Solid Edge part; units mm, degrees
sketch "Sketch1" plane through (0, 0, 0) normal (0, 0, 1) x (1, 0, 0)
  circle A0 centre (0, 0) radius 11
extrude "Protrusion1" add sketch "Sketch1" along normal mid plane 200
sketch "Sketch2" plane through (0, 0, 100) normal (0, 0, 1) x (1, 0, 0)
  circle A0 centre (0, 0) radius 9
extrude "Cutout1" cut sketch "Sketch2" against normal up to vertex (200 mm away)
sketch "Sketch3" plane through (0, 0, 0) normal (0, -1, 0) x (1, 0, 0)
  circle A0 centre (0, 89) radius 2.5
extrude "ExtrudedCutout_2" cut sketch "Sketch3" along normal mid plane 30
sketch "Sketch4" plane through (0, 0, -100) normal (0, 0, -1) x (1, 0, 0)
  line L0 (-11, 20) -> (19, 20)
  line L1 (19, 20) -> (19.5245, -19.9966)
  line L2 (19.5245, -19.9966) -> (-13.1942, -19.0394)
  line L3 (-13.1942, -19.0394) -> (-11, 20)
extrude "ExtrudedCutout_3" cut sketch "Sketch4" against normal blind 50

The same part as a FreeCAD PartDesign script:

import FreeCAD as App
import Part
import Sketcher

V = App.Vector
Q = App.Units.Quantity

doc = App.newDocument("Part")
body = doc.addObject("PartDesign::Body", "Body")

# Sketch on XY plane
sketch1 = doc.addObject("Sketcher::SketchObject", "Sketch")
body.addObject(sketch1)
sketch1.AttachmentSupport = (doc.XY_Plane, [""])
sketch1.MapMode = "FlatFace"
sketch1.addGeometry(Part.Circle(V(0, 0, 0), V(0, 0, 1), 11), False)
sketch1.addConstraint(Sketcher.Constraint("Coincident", 0, 3, -1, 1))
sketch1.addConstraint(Sketcher.Constraint("Diameter", 0, Q("22 mm")))
pad1 = doc.addObject("PartDesign::Pad", "Pad")
body.addObject(pad1)
pad1.Profile = sketch1
pad1.Length = 200
pad1.Midplane = True

# Sketch on XY plane
sketch2 = doc.addObject("Sketcher::SketchObject", "Sketch001")
body.addObject(sketch2)
sketch2.AttachmentSupport = (doc.XY_Plane, [""])
sketch2.MapMode = "FlatFace"
sketch2.AttachmentOffset = App.Placement(V(0, 0, 100), App.Rotation())
sketch2.addGeometry(Part.Circle(V(0, 0, 0), V(0, 0, 1), 9), False)
sketch2.addConstraint(Sketcher.Constraint("Coincident", 0, 3, -1, 1))
sketch2.addConstraint(Sketcher.Constraint("Diameter", 0, Q("18 mm")))
pocket1 = doc.addObject("PartDesign::Pocket", "Pocket")
body.addObject(pocket1)
pocket1.Profile = sketch2
pocket1.Length = 200

# Sketch on XZ plane
sketch3 = doc.addObject("Sketcher::SketchObject", "Sketch002")
body.addObject(sketch3)
sketch3.AttachmentSupport = (doc.XZ_Plane, [""])
sketch3.MapMode = "FlatFace"
sketch3.addGeometry(Part.Circle(V(0, 89, 0), V(0, 0, 1), 2.5), False)
sketch3.addConstraint(Sketcher.Constraint("PointOnObject", 0, 3, -2))
sketch3.addConstraint(Sketcher.Constraint("Diameter", 0, Q("5 mm")))
sketch3.addConstraint(Sketcher.Constraint("DistanceY", -1, 1, 0, 3, Q("89 mm")))
pocket2 = doc.addObject("PartDesign::Pocket", "Pocket001")
body.addObject(pocket2)
pocket2.Profile = sketch3
pocket2.Length = 30
pocket2.Midplane = True

# Sketch on XY plane
sketch4 = doc.addObject("Sketcher::SketchObject", "Sketch003")
body.addObject(sketch4)
sketch4.AttachmentSupport = (doc.XY_Plane, [""])
sketch4.MapMode = "FlatFace"
sketch4.AttachmentOffset = App.Placement(V(0, 0, -100), App.Rotation())
sketch4.addGeometry(Part.LineSegment(V(19, -20, 0), V(-11, -20, 0)), False)
sketch4.addGeometry(Part.LineSegment(V(-11, -20, 0), V(-13, 19, 0)), False)
sketch4.addGeometry(Part.LineSegment(V(-13, 19, 0), V(20, 20, 0)), False)
sketch4.addGeometry(Part.LineSegment(V(20, 20, 0), V(19, -20, 0)), False)
sketch4.addConstraint(Sketcher.Constraint("Coincident", 0, 2, 1, 1))
sketch4.addConstraint(Sketcher.Constraint("Coincident", 1, 2, 2, 1))
sketch4.addConstraint(Sketcher.Constraint("Coincident", 2, 2, 3, 1))
sketch4.addConstraint(Sketcher.Constraint("Coincident", 3, 2, 0, 1))
sketch4.addConstraint(Sketcher.Constraint("Horizontal", 0))
sketch4.addConstraint(Sketcher.Constraint("DistanceX", 0, 2, 0, 1, Q("30 mm")))
sketch4.addConstraint(Sketcher.Constraint("Distance", 3, Q("40 mm")))
sketch4.addConstraint(Sketcher.Constraint("DistanceX", 0, 2, -1, 1, Q("11 mm")))
sketch4.addConstraint(Sketcher.Constraint("DistanceY", 0, 2, -1, 1, Q("20 mm")))
sketch4.addConstraint(Sketcher.Constraint("Distance", 1, Q("39.101 mm")))
sketch4.addConstraint(Sketcher.Constraint("Distance", 2, Q("32.7327 mm")))
sketch4.addConstraint(Sketcher.Constraint("DistanceX", 1, 2, -1, 1, Q("13.1942 mm")))
pocket3 = doc.addObject("PartDesign::Pocket", "Pocket002")
body.addObject(pocket3)
pocket3.Profile = sketch4
pocket3.Length = 50
pocket3.Reversed = True

doc.recompute()
